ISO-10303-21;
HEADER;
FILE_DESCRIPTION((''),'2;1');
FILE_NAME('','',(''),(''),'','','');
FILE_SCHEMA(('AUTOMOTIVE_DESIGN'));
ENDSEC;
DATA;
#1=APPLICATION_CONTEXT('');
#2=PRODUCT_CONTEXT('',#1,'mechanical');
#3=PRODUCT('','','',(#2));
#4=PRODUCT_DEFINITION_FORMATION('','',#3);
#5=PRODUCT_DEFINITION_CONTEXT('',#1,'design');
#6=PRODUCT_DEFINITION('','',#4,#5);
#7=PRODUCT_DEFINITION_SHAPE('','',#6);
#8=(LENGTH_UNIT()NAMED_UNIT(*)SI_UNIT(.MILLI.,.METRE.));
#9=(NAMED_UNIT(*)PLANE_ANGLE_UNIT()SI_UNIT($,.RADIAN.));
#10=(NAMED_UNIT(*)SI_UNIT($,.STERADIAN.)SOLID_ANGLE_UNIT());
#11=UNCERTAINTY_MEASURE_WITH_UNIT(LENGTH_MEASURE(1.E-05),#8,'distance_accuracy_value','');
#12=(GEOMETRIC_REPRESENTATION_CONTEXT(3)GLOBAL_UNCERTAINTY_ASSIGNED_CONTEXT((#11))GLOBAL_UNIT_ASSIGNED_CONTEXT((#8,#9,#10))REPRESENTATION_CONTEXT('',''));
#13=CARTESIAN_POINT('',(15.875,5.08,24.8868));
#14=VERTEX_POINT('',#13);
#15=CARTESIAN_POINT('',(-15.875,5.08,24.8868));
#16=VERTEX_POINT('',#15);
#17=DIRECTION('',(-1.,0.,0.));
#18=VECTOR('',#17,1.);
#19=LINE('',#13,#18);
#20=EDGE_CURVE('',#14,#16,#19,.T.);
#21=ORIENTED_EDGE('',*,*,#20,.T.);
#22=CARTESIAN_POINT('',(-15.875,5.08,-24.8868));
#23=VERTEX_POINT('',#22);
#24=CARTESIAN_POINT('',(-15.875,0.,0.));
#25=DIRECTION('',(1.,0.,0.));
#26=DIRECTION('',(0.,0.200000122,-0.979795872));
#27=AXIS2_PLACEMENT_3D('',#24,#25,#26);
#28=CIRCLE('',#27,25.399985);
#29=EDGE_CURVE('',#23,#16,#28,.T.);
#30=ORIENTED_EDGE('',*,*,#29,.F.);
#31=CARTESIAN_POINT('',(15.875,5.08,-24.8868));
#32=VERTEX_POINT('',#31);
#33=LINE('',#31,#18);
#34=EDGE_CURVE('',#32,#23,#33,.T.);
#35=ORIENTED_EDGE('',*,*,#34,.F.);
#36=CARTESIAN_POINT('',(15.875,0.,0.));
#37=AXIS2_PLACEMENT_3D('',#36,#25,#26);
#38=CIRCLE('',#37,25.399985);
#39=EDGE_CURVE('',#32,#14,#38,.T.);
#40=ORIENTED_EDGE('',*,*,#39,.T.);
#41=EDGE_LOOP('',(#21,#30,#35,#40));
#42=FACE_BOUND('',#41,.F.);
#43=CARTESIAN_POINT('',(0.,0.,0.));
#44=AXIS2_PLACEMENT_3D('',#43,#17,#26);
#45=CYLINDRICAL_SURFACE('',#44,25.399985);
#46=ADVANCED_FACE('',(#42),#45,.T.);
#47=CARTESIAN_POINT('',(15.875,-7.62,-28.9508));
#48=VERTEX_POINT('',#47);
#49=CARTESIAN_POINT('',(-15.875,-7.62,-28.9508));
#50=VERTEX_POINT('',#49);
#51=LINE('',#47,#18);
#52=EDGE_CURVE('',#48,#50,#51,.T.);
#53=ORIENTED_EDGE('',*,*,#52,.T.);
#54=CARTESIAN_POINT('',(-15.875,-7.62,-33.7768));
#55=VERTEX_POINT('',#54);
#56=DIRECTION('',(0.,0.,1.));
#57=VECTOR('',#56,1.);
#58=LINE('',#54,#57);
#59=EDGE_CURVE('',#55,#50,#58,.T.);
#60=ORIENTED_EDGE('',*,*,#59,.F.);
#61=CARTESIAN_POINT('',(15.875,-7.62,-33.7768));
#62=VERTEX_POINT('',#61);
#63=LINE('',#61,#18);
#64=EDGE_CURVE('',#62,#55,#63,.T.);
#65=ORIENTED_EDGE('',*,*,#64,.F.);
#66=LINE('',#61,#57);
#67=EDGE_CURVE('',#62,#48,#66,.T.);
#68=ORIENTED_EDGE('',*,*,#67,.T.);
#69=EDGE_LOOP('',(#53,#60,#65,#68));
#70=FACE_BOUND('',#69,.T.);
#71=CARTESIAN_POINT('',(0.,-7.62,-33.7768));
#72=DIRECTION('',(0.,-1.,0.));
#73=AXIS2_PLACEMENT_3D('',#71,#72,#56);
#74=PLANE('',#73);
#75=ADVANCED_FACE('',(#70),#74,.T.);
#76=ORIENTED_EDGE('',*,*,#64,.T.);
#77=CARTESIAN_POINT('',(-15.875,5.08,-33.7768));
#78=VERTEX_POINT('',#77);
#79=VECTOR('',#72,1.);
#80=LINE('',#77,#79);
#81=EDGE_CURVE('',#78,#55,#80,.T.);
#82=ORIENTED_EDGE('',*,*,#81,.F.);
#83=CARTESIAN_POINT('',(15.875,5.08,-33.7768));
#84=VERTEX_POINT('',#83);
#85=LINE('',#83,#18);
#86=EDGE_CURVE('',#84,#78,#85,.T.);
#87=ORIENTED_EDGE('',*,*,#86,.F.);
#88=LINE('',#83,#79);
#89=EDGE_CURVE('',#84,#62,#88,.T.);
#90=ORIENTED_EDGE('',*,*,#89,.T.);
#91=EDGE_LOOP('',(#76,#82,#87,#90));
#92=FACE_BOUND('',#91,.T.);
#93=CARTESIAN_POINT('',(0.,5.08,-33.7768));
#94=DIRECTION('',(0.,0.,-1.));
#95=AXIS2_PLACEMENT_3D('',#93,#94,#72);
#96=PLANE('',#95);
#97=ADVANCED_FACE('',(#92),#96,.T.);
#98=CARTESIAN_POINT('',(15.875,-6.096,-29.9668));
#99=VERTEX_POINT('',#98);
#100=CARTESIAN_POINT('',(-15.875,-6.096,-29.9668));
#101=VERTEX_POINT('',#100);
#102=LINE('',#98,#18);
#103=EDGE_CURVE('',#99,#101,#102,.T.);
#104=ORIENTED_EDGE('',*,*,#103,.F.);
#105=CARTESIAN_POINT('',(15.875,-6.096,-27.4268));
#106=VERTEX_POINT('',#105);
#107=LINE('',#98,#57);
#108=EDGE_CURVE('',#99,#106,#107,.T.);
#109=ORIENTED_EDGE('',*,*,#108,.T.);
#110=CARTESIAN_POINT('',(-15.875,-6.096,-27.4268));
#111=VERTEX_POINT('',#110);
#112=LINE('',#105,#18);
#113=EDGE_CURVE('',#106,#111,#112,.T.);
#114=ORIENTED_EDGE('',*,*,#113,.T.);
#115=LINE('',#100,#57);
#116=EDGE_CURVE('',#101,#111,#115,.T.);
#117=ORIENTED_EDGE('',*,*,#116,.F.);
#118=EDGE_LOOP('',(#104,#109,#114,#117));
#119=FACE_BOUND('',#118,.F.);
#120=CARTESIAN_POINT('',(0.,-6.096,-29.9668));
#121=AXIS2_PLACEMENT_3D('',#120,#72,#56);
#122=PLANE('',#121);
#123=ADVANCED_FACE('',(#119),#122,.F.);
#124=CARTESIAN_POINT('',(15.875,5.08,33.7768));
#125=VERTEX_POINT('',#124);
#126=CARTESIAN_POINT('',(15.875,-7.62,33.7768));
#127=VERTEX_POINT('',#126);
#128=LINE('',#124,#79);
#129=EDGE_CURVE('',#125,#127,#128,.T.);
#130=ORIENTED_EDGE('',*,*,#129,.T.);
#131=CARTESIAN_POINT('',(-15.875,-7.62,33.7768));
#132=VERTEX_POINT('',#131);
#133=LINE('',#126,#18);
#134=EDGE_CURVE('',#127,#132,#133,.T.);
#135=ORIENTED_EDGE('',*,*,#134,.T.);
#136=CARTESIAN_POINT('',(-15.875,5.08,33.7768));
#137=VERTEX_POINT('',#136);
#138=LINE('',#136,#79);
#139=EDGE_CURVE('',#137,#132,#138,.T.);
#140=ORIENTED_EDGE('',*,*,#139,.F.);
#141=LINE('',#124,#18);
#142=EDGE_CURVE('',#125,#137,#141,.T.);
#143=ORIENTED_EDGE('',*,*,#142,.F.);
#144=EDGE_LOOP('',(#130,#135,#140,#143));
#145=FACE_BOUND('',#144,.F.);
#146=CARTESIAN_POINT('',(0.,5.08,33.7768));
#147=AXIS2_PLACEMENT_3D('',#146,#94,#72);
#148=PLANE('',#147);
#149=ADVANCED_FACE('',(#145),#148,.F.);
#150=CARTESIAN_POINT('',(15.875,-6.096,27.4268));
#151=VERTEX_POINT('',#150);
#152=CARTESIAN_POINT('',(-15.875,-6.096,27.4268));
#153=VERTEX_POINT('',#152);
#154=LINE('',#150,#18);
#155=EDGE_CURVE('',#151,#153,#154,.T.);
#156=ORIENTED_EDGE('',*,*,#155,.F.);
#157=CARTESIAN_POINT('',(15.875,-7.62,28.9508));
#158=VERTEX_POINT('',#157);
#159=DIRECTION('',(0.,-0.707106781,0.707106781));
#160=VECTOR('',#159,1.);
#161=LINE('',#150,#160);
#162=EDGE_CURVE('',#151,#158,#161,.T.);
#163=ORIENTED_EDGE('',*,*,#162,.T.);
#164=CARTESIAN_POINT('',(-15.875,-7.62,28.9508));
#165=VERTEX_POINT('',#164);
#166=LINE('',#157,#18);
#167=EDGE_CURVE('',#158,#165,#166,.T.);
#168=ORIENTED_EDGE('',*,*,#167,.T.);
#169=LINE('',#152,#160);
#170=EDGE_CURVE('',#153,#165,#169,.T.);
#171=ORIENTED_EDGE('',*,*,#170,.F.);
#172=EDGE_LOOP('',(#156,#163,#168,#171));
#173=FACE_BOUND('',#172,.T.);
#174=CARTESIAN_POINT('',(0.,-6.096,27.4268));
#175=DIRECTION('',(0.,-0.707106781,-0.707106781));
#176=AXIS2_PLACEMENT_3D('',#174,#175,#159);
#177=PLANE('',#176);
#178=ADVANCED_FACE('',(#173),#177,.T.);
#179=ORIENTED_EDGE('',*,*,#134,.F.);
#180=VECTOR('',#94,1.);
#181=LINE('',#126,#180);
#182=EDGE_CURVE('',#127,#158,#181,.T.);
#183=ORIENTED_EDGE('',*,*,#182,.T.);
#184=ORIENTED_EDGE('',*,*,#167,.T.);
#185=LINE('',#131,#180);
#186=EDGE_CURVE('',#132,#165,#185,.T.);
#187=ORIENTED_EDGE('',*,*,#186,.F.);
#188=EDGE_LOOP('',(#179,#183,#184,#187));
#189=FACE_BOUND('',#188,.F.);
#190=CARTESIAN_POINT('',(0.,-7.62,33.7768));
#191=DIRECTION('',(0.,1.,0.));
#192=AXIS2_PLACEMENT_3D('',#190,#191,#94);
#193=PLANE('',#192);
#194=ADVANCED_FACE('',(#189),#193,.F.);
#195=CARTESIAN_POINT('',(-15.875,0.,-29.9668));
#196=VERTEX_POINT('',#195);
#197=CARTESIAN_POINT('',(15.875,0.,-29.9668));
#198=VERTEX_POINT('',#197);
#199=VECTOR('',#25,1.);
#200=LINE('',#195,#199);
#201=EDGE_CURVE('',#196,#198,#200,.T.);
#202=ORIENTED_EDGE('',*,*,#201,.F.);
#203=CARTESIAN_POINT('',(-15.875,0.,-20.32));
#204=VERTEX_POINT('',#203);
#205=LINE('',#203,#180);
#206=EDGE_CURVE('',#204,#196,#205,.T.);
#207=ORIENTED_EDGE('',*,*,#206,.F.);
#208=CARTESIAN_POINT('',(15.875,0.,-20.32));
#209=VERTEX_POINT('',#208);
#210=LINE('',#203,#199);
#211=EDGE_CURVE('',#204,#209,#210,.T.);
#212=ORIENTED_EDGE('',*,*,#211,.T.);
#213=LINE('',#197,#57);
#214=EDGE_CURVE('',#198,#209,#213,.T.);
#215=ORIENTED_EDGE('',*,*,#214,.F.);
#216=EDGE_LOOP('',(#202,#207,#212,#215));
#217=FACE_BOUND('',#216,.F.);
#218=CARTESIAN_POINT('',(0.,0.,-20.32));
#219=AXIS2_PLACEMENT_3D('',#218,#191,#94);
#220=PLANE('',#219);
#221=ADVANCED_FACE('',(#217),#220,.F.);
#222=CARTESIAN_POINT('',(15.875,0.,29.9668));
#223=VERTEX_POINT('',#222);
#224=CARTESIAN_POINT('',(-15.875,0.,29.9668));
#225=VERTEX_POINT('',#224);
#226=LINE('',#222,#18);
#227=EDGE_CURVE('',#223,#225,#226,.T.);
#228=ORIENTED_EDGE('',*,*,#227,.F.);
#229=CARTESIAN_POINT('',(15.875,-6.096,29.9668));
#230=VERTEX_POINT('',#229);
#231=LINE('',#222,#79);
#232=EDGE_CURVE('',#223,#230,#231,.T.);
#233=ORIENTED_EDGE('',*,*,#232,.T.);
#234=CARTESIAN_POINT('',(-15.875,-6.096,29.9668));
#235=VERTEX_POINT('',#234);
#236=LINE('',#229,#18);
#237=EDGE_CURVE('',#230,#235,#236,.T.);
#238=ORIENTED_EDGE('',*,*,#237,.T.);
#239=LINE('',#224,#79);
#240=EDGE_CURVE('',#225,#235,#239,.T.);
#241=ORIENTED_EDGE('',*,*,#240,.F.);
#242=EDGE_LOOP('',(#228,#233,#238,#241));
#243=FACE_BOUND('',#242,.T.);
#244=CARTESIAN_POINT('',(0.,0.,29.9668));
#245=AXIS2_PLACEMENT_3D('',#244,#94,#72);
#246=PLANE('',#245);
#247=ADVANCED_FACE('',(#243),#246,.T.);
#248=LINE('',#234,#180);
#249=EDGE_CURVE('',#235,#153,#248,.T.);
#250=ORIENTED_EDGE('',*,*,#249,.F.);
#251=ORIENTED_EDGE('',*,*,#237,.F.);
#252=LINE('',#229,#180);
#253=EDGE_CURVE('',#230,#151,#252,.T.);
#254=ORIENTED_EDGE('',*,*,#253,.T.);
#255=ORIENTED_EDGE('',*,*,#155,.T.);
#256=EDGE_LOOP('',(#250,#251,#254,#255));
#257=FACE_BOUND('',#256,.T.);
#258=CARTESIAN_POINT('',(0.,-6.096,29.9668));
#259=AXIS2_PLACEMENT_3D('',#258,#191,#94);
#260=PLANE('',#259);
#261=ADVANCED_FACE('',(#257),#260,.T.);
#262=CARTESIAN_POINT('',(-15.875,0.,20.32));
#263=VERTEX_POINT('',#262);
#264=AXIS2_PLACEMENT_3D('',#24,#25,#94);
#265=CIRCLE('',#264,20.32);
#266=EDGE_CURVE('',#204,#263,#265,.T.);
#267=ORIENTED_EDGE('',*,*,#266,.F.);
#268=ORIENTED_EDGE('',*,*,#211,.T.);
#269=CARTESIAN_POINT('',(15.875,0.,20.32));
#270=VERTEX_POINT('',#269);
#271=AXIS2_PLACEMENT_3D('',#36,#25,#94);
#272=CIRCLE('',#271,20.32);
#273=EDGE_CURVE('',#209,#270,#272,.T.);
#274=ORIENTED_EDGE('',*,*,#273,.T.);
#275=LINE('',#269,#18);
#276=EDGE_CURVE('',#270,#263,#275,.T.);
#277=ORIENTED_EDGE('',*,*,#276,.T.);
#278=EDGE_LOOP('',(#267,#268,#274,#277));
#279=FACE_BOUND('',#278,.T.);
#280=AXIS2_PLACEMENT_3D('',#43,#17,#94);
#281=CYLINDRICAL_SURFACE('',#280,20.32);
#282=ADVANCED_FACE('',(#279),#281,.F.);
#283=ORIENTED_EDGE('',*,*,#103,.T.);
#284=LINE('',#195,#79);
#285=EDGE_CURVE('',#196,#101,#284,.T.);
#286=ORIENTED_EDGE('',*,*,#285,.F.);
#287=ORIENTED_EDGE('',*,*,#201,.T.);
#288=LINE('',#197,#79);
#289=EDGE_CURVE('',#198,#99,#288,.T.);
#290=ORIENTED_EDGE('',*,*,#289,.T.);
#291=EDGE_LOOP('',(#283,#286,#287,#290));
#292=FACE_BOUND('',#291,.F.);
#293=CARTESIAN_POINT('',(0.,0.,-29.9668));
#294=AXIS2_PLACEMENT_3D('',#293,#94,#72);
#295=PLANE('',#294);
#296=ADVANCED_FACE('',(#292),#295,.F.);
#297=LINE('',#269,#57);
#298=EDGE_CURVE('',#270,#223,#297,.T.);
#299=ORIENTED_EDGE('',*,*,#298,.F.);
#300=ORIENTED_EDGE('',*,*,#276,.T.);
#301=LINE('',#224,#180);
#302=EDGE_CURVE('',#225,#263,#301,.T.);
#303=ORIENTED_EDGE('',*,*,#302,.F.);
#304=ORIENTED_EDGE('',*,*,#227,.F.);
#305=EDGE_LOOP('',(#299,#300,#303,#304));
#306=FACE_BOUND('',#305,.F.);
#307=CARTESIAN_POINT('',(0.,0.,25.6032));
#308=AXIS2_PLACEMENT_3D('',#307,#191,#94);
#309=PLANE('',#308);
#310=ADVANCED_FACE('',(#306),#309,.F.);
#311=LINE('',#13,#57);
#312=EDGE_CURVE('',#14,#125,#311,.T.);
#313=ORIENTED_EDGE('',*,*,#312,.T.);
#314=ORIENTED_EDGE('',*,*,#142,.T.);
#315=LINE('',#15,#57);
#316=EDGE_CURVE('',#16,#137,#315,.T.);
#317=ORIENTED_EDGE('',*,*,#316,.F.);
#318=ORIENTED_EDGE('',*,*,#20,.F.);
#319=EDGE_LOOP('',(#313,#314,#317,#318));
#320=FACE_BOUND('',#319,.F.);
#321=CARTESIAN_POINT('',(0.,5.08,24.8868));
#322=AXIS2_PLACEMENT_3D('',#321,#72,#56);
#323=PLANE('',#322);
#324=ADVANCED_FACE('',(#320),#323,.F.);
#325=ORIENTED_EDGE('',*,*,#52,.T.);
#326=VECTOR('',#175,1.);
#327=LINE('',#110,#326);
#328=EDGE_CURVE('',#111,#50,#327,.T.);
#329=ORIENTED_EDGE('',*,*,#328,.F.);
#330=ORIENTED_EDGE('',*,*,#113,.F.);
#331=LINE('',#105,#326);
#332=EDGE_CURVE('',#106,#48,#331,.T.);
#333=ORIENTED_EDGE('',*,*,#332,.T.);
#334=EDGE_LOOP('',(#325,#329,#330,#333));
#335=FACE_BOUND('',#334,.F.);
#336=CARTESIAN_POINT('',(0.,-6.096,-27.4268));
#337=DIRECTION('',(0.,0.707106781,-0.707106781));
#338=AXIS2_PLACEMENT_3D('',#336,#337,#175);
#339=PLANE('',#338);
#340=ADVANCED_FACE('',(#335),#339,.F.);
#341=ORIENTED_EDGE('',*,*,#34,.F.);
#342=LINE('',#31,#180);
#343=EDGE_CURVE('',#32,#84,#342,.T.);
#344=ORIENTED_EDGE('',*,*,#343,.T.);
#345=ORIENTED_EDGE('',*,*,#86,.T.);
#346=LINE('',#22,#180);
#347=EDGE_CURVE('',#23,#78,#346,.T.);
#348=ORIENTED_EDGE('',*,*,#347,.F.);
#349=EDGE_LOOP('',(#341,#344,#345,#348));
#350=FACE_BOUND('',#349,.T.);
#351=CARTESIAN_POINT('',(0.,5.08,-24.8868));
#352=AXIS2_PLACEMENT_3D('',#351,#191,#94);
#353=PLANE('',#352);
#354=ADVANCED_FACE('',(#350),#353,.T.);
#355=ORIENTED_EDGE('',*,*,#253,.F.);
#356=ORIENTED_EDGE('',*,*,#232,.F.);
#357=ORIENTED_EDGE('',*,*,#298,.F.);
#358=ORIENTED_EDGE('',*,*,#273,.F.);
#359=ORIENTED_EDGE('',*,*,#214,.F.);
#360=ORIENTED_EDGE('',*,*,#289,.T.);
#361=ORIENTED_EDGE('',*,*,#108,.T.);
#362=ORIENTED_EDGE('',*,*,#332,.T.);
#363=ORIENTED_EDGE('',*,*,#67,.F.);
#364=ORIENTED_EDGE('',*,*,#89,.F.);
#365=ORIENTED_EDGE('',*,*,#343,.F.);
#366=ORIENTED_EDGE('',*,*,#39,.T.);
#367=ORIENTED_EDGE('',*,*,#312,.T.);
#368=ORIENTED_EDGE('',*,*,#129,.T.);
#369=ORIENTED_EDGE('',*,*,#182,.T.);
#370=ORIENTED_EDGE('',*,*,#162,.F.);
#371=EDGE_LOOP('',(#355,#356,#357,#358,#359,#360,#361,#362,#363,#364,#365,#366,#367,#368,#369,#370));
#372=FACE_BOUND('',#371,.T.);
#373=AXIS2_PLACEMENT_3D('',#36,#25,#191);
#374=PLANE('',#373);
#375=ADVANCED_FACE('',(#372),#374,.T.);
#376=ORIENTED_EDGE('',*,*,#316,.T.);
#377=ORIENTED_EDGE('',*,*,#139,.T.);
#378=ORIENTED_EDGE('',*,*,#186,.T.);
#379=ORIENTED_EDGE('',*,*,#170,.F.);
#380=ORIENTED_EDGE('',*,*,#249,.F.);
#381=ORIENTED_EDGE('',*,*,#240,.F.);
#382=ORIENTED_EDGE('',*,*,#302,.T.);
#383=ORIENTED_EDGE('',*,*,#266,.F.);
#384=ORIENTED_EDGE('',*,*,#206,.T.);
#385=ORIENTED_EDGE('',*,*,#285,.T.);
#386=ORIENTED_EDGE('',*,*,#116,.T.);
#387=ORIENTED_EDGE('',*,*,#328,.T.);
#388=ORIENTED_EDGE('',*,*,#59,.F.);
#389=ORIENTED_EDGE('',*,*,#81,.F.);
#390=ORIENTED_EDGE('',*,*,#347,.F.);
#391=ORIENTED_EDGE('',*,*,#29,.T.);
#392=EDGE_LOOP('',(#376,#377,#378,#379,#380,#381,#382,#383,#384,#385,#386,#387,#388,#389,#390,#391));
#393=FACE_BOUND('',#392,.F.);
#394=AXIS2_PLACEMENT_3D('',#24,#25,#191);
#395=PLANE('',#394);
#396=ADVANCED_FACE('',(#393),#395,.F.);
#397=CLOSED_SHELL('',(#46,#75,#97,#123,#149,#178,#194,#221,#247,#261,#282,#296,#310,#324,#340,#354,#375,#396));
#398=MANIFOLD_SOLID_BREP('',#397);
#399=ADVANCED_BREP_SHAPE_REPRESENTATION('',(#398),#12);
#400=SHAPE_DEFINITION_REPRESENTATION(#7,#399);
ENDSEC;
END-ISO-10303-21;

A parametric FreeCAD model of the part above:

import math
import FreeCAD as App
import Part
import Sketcher

V = App.Vector
Q = App.Units.Quantity

doc = App.newDocument("Part")
body = doc.addObject("PartDesign::Body", "Body")

# Sketch on YZ plane
sketch1 = doc.addObject("Sketcher::SketchObject", "Sketch")
body.addObject(sketch1)
sketch1.AttachmentSupport = (doc.YZ_Plane, [""])
sketch1.MapMode = "FlatFace"
sketch1.addGeometry([
    Part.ArcOfCircle(Part.Circle(V(0, 0, 0), V(0, 0, 1), 20.32), math.radians(-90), math.radians(90)),  # 0
    Part.LineSegment(V(0, -20.32, 0), V(0, -29.9668, 0)),  # 1
    Part.LineSegment(V(0, -29.9668, 0), V(-6.096, -29.9668, 0)),  # 2
    Part.LineSegment(V(-6.096, -29.9668, 0), V(-6.096, -27.4268, 0)),  # 3
    Part.LineSegment(V(-6.096, -27.4268, 0), V(-7.62, -28.9508, 0)),  # 4
    Part.LineSegment(V(-7.62, -28.9508, 0), V(-7.62, -33.7768, 0)),  # 5
    Part.LineSegment(V(-7.62, -33.7768, 0), V(5.08, -33.7768, 0)),  # 6
    Part.LineSegment(V(5.08, -33.7768, 0), V(5.08, -24.8868, 0)),  # 7
    Part.ArcOfCircle(Part.Circle(V(0, 0, 0), V(0, 0, 1), 25.399985), math.radians(-78.463034), math.radians(78.463034)),  # 8
    Part.LineSegment(V(5.08, 24.8868, 0), V(5.08, 33.7768, 0)),  # 9
    Part.LineSegment(V(5.08, 33.7768, 0), V(-7.62, 33.7768, 0)),  # 10
    Part.LineSegment(V(-7.62, 33.7768, 0), V(-7.62, 28.9508, 0)),  # 11
    Part.LineSegment(V(-7.62, 28.9508, 0), V(-6.096, 27.4268, 0)),  # 12
    Part.LineSegment(V(-6.096, 27.4268, 0), V(-6.096, 29.9668, 0)),  # 13
    Part.LineSegment(V(-6.096, 29.9668, 0), V(0, 29.9668, 0)),  # 14
    Part.LineSegment(V(0, 29.9668, 0), V(0, 20.32, 0)),  # 15
], False)
sketch1.addConstraint([
    Sketcher.Constraint("Coincident", 0, 1, 1, 1),
    Sketcher.Constraint("Coincident", 1, 2, 2, 1),
    Sketcher.Constraint("Coincident", 2, 2, 3, 1),
    Sketcher.Constraint("Coincident", 3, 2, 4, 1),
    Sketcher.Constraint("Coincident", 4, 2, 5, 1),
    Sketcher.Constraint("Coincident", 5, 2, 6, 1),
    Sketcher.Constraint("Coincident", 6, 2, 7, 1),
    Sketcher.Constraint("Coincident", 7, 2, 8, 1),
    Sketcher.Constraint("Coincident", 8, 2, 9, 1),
    Sketcher.Constraint("Coincident", 9, 2, 10, 1),
    Sketcher.Constraint("Coincident", 10, 2, 11, 1),
    Sketcher.Constraint("Coincident", 11, 2, 12, 1),
    Sketcher.Constraint("Coincident", 12, 2, 13, 1),
    Sketcher.Constraint("Coincident", 13, 2, 14, 1),
    Sketcher.Constraint("Coincident", 14, 2, 15, 1),
    Sketcher.Constraint("Coincident", 15, 2, 0, 2),
    Sketcher.Constraint("Vertical", 1),
    Sketcher.Constraint("Horizontal", 2),
    Sketcher.Constraint("Vertical", 3),
    Sketcher.Constraint("Vertical", 5),
    Sketcher.Constraint("Horizontal", 6),
    Sketcher.Constraint("Vertical", 7),
    Sketcher.Constraint("Vertical", 9),
    Sketcher.Constraint("Horizontal", 10),
    Sketcher.Constraint("Vertical", 11),
    Sketcher.Constraint("Vertical", 13),
    Sketcher.Constraint("Horizontal", 14),
    Sketcher.Constraint("Vertical", 15),
    Sketcher.Constraint("Coincident", 0, 3, -1, 1),
    Sketcher.Constraint("Coincident", 8, 3, -1, 1),
    Sketcher.Constraint("Symmetric", 1, 2, 14, 2, -1, 1),
    Sketcher.Constraint("Symmetric", 6, 2, 9, 2, -1),
    Sketcher.Constraint("Symmetric", 4, 2, 11, 2, -1),
    Sketcher.Constraint("Symmetric", 3, 2, 12, 2, -1),
    Sketcher.Constraint("PointOnObject", 0, 1, -2),
    Sketcher.Constraint("Perpendicular", 4, 12),
    Sketcher.Constraint("Radius", 8, Q("1 in")),
    Sketcher.Constraint("Radius", 0, Q("0.8 in")),
    Sketcher.Constraint("DistanceX", 6, 1, 6, 2, Q("0.5 in")),
    Sketcher.Constraint("DistanceY", 3, 1, 3, 2, Q("0.1 in")),
    Sketcher.Constraint("DistanceX", 2, 2, 2, 1, Q("0.24 in")),
    Sketcher.Constraint("DistanceY", 7, 1, 7, 2, Q("0.35 in")),
    Sketcher.Constraint("DistanceX", -1, 1, 6, 2, Q("0.2 in")),
    Sketcher.Constraint("DistanceY", 1, 2, 7, 2, Q("0.2 in")),
])
pad1 = doc.addObject("PartDesign::Pad", "Pad")
body.addObject(pad1)
pad1.Profile = sketch1
pad1.Length = Q("1.25 in")
pad1.Midplane = True

doc.recompute()
